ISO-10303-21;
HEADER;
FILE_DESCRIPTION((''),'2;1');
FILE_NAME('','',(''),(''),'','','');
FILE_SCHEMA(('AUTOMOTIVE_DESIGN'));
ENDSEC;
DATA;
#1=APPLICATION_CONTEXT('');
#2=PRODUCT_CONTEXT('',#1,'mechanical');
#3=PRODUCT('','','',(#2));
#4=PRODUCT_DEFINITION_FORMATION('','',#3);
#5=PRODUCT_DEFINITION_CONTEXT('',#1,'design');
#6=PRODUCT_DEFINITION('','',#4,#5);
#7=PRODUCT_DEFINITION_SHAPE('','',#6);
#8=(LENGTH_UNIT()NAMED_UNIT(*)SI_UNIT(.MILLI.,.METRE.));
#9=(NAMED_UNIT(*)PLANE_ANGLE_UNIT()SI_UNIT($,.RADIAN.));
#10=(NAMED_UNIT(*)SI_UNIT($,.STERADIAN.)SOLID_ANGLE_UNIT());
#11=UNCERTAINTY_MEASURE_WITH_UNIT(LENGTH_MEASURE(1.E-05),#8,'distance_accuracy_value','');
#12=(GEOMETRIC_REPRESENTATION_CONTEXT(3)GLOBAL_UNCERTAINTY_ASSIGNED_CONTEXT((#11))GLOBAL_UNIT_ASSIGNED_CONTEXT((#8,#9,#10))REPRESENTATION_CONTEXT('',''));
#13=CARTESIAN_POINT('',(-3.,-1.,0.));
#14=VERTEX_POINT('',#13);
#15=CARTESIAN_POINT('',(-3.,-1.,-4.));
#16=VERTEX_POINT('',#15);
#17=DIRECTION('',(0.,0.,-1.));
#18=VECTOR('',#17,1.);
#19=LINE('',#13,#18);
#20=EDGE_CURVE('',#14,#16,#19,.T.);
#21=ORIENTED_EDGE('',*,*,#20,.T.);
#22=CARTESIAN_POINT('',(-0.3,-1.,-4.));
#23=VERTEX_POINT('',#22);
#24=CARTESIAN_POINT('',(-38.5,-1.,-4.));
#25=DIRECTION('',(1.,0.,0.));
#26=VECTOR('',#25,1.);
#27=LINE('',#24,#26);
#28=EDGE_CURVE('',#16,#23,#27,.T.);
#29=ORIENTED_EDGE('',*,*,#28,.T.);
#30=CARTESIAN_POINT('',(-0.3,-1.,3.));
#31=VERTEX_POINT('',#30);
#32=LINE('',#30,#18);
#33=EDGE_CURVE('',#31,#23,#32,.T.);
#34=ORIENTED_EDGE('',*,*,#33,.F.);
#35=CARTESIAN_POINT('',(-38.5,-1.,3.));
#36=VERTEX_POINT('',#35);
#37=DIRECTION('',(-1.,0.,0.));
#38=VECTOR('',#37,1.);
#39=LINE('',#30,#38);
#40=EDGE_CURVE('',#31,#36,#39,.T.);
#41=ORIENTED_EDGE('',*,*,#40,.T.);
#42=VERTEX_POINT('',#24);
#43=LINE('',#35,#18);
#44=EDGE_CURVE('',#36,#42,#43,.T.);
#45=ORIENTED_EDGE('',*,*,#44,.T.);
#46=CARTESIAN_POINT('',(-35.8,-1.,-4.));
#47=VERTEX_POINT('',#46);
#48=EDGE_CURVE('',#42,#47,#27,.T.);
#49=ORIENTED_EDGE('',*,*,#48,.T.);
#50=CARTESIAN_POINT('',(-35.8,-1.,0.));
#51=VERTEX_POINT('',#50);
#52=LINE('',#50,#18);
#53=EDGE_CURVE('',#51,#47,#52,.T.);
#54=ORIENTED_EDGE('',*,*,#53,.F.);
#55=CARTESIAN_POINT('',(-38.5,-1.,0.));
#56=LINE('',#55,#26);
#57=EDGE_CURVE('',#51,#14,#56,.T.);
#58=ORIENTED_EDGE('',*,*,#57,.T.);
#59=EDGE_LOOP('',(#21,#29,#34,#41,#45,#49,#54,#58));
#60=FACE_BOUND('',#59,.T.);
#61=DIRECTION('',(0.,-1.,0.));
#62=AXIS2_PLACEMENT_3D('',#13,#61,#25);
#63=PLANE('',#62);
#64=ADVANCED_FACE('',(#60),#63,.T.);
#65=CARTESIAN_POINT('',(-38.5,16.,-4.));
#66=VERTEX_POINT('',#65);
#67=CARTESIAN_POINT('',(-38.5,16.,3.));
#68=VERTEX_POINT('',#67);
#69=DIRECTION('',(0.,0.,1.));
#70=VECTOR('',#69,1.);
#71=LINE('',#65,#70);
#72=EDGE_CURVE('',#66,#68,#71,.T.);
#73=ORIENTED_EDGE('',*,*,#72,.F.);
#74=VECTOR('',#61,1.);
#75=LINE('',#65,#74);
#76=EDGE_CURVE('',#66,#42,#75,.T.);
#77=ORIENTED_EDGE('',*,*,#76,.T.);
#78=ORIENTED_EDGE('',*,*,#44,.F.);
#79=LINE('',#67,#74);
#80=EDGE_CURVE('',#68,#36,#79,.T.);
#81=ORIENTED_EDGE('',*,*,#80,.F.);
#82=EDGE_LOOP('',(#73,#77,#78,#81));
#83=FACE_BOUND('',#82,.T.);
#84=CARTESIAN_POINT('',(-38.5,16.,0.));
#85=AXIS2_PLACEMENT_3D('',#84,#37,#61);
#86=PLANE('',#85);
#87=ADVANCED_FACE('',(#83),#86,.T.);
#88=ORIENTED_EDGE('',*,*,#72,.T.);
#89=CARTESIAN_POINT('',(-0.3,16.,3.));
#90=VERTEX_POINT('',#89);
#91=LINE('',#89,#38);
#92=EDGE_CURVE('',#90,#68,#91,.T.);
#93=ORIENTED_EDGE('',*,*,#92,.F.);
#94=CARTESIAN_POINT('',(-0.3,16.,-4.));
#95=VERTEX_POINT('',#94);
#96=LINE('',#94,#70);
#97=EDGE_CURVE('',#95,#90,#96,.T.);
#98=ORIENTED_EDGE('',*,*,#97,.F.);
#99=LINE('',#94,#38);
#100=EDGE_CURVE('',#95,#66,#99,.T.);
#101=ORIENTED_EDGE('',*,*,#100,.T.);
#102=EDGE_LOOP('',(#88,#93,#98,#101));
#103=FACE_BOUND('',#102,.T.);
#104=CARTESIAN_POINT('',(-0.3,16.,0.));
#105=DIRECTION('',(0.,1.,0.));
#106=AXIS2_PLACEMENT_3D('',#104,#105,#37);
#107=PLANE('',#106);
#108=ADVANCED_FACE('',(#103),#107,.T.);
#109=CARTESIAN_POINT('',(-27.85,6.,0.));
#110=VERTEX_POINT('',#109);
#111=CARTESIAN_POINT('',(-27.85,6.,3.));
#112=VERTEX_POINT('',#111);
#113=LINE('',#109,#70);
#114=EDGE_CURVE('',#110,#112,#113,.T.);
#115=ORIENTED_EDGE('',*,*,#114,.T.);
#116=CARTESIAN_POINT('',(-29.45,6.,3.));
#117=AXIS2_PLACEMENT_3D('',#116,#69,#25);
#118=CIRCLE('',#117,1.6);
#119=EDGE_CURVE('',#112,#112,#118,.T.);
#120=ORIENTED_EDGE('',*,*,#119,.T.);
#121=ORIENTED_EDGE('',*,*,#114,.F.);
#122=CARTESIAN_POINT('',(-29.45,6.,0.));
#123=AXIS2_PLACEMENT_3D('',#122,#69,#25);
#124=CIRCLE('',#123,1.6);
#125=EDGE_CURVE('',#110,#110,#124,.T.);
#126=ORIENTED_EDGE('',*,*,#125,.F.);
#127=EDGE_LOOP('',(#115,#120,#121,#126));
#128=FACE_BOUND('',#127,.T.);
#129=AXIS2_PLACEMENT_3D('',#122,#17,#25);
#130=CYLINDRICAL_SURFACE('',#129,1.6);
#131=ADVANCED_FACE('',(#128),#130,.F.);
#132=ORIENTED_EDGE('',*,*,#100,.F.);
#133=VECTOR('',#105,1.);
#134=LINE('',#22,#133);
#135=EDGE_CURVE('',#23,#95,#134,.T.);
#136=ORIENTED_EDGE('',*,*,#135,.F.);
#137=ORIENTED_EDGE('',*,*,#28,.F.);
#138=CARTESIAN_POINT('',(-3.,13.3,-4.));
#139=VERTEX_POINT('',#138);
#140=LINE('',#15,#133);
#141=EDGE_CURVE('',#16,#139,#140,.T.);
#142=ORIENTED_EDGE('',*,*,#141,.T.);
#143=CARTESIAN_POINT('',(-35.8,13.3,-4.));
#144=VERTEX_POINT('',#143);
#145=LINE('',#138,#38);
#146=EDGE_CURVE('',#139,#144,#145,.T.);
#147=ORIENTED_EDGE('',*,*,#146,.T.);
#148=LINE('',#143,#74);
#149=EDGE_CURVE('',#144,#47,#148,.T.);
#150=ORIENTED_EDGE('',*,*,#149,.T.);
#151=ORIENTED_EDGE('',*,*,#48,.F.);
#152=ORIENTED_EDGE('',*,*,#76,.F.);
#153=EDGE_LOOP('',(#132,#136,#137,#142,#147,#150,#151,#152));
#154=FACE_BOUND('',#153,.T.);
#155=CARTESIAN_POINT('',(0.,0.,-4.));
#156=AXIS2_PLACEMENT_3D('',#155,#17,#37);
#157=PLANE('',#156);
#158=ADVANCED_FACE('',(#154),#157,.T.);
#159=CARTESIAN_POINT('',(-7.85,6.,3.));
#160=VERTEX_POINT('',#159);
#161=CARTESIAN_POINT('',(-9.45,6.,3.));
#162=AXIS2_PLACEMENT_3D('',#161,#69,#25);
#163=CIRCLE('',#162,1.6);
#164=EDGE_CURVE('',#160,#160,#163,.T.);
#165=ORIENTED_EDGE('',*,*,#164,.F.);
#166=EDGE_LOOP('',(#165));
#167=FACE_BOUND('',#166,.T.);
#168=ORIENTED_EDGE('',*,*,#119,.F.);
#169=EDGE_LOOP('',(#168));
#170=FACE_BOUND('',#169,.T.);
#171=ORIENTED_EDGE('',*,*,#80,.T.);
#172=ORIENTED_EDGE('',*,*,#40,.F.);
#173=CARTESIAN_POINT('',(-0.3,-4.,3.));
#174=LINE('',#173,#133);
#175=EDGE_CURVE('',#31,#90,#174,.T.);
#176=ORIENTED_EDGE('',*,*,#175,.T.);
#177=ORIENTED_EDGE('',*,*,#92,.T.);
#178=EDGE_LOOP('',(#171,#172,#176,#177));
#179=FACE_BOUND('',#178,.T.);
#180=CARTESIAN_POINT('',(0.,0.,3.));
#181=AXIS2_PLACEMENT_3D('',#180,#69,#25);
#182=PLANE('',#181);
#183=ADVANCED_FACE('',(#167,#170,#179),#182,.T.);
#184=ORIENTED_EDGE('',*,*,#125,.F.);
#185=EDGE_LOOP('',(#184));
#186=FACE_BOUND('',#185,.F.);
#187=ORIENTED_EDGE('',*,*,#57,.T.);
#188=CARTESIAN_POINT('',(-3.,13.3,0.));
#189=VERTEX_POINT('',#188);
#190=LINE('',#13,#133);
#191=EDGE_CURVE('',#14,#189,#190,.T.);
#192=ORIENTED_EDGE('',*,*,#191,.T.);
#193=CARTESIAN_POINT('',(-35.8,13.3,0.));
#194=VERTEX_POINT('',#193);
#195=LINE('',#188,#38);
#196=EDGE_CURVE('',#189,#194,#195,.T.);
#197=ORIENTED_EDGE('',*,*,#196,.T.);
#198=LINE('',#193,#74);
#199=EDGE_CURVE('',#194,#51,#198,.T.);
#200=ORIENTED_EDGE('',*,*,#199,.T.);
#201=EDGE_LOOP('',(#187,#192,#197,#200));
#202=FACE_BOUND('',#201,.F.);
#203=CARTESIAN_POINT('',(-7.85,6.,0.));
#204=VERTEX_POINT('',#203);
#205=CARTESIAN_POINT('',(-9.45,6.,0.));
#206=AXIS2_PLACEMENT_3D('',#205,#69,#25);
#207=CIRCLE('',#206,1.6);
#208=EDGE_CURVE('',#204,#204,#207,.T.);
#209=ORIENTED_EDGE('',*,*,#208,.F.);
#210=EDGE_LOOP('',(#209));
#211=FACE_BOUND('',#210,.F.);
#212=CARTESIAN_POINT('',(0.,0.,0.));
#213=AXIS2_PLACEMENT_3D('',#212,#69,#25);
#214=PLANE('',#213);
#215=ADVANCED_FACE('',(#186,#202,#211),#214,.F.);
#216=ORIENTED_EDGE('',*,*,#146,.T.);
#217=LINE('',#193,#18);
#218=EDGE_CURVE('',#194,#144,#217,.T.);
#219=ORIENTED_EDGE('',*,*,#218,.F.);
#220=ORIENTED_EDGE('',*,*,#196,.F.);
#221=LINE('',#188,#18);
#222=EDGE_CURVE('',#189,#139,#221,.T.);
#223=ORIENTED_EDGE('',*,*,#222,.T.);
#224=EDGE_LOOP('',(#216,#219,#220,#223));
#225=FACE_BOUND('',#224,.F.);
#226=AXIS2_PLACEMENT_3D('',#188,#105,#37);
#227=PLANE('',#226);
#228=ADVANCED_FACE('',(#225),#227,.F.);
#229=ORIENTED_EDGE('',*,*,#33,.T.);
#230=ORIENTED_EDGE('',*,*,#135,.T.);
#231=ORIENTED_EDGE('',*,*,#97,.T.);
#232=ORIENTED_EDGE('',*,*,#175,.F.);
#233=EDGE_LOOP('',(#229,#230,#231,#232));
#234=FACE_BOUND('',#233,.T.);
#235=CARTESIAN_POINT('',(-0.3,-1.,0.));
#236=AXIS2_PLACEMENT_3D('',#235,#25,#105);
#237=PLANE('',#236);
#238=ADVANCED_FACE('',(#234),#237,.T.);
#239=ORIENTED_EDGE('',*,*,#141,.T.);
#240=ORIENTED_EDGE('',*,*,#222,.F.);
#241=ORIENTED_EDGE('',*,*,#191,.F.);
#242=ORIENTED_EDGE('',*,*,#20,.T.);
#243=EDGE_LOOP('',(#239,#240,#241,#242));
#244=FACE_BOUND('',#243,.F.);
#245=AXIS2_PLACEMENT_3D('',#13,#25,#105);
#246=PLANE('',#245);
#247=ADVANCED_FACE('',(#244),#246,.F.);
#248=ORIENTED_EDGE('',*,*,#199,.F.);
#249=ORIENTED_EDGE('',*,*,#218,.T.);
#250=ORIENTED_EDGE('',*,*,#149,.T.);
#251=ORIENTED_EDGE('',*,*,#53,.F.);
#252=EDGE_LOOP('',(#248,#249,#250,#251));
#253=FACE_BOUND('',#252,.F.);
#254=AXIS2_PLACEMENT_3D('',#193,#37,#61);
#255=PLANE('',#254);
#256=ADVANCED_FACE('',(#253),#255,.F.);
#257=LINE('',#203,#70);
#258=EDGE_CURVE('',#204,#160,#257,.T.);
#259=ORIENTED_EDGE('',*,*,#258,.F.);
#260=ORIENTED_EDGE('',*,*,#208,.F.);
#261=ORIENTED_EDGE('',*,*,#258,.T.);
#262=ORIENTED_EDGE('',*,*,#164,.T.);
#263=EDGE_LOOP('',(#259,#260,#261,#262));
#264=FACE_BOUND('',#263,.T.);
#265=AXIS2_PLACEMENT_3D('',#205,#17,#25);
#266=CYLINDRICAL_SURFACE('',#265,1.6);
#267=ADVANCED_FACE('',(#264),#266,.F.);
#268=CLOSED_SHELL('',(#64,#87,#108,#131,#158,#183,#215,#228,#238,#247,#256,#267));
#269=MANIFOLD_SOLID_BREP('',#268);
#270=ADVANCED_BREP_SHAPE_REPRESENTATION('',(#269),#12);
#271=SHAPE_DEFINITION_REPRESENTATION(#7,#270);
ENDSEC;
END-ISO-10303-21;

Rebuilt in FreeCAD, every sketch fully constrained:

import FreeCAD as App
import Part
import Sketcher
from FreeCAD import Vector
Q = App.Units.Quantity


def add_polygon(sketch, points):
    """Adds a closed chain of lines whose ends are joined by coincident constraints."""
    first, n = sketch.GeometryCount, len(points)
    for a, b in zip(points, points[1:] + points[:1]):
        sketch.addGeometry(Part.LineSegment(App.Vector(*a, 0), App.Vector(*b, 0)), False)
    for i in range(n):
        sketch.addConstraint(Sketcher.Constraint("Coincident", first + i, 2, first + (i + 1) % n, 1))

doc = App.newDocument("Part")
body = doc.addObject("PartDesign::Body", "Body")

sketch1 = body.newObject("Sketcher::SketchObject", "Sketch")
sketch1.AttachmentSupport = (doc.getObject("XY_Plane"), [""])
sketch1.MapMode = "FlatFace"
add_polygon(sketch1, [(-0.3, -1), (-0.3, 16), (-38.5, 16), (-38.5, -1)])
sketch1.addGeometry(Part.Circle(Vector(-29.4, 6, 0), Vector(0, 0, 1), 1.6), False)
sketch1.addGeometry(Part.Circle(Vector(-9.4, 6, 0), Vector(0, 0, 1), 1.6), False)
sketch1.addConstraint(Sketcher.Constraint("Vertical", 0))
sketch1.addConstraint(Sketcher.Constraint("Horizontal", 1))
sketch1.addConstraint(Sketcher.Constraint("Vertical", 2))
sketch1.addConstraint(Sketcher.Constraint("Horizontal", 3))
sketch1.addConstraint(Sketcher.Constraint("Equal", 4, 5))
sketch1.addConstraint(Sketcher.Constraint("Horizontal", 4, 3, 5, 3))
sketch1.addConstraint(Sketcher.Constraint("Diameter", 4, Q("3.2 mm")))
sketch1.addConstraint(Sketcher.Constraint("DistanceY", 0, 1, 0, 2, Q("17 mm")))
sketch1.addConstraint(Sketcher.Constraint("DistanceX", 1, 2, 1, 1, Q("38.2 mm")))
sketch1.addConstraint(Sketcher.Constraint("DistanceY", -1, 1, 4, 3, Q("6 mm")))
sketch1.addConstraint(Sketcher.Constraint("DistanceY", -1, 1, 0, 2, Q("16 mm")))
sketch1.addConstraint(Sketcher.Constraint("DistanceX", 4, 3, 5, 3, Q("20 mm")))
sketch1.addConstraint(Sketcher.Constraint("DistanceX", 0, 2, -1, 1, Q("0.3 mm")))
sketch1.addConstraint(Sketcher.Constraint("DistanceX", 4, 3, -1, 1, Q("29.45 mm")))
pad1 = body.newObject("PartDesign::Pad", "Pad")
pad1.Profile = sketch1
pad1.Length = 3

sketch2 = body.newObject("Sketcher::SketchObject", "Sketch001")
sketch2.AttachmentSupport = (doc.getObject("XY_Plane"), [""])
sketch2.MapMode = "FlatFace"
add_polygon(sketch2, [(-0.3, 16), (-0.3, -1), (-3, -1), (-3, 13.3), (-35.8, 13.3), (-35.8, -1), (-38.5, -1), (-38.5, 16)])
sketch2.addConstraint(Sketcher.Constraint("Vertical", 0))
sketch2.addConstraint(Sketcher.Constraint("Horizontal", 1))
sketch2.addConstraint(Sketcher.Constraint("Vertical", 2))
sketch2.addConstraint(Sketcher.Constraint("Horizontal", 3))
sketch2.addConstraint(Sketcher.Constraint("Vertical", 4))
sketch2.addConstraint(Sketcher.Constraint("Horizontal", 5))
sketch2.addConstraint(Sketcher.Constraint("Vertical", 6))
sketch2.addConstraint(Sketcher.Constraint("Horizontal", 7))
sketch2.addConstraint(Sketcher.Constraint("Horizontal", 1, 2, 4, 2))
sketch2.addConstraint(Sketcher.Constraint("Equal", 1, 5))
sketch2.addConstraint(Sketcher.Constraint("DistanceX", 0, 2, -1, 1, Q("0.3 mm")))
sketch2.addConstraint(Sketcher.Constraint("DistanceY", 0, 2, 0, 1, Q("17 mm")))
sketch2.addConstraint(Sketcher.Constraint("DistanceX", 1, 2, 1, 1, Q("2.7 mm")))
sketch2.addConstraint(Sketcher.Constraint("DistanceX", 3, 2, 3, 1, Q("32.8 mm")))
sketch2.addConstraint(Sketcher.Constraint("DistanceY", 2, 1, 2, 2, Q("14.3 mm")))
sketch2.addConstraint(Sketcher.Constraint("DistanceY", 0, 2, -1, 1, Q("1 mm")))
pad2 = body.newObject("PartDesign::Pad", "Pad001")
pad2.Profile = sketch2
pad2.Length = 4
pad2.Reversed = True

doc.recompute()
